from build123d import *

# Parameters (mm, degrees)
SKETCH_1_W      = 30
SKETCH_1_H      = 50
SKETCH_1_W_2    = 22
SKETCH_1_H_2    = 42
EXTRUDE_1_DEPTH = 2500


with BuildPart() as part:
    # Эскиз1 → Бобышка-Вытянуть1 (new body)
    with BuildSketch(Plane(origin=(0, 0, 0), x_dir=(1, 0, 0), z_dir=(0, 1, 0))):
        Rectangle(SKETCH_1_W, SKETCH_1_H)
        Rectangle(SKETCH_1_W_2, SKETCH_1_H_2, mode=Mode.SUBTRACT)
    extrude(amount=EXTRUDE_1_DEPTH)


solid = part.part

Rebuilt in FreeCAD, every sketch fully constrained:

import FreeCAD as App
import Part
import Sketcher

V = App.Vector
Q = App.Units.Quantity

doc = App.newDocument("Part")
body = doc.addObject("PartDesign::Body", "Body")

# Sketch on XZ plane
sketch1 = body.newObject("Sketcher::SketchObject", "Sketch")
sketch1.AttachmentSupport = (doc.getObject("XZ_Plane"), [""])
sketch1.MapMode = "FlatFace"
sketch1.addGeometry([
    Part.LineSegment(V(-15, -25, 0), V(-15, 25, 0)),  # 0
    Part.LineSegment(V(-15, 25, 0), V(15, 25, 0)),  # 1
    Part.LineSegment(V(15, 25, 0), V(15, -25, 0)),  # 2
    Part.LineSegment(V(15, -25, 0), V(-15, -25, 0)),  # 3
    Part.LineSegment(V(11, 21, 0), V(-11, 21, 0)),  # 4
    Part.LineSegment(V(-11, 21, 0), V(-11, -21, 0)),  # 5
    Part.LineSegment(V(-11, -21, 0), V(11, -21, 0)),  # 6
    Part.LineSegment(V(11, -21, 0), V(11, 21, 0)),  # 7
], False)
sketch1.addConstraint([
    Sketcher.Constraint("Coincident", 0, 2, 1, 1),
    Sketcher.Constraint("Coincident", 1, 2, 2, 1),
    Sketcher.Constraint("Coincident", 2, 2, 3, 1),
    Sketcher.Constraint("Coincident", 3, 2, 0, 1),
    Sketcher.Constraint("Coincident", 4, 2, 5, 1),
    Sketcher.Constraint("Coincident", 5, 2, 6, 1),
    Sketcher.Constraint("Coincident", 6, 2, 7, 1),
    Sketcher.Constraint("Coincident", 7, 2, 4, 1),
    Sketcher.Constraint("Vertical", 0),
    Sketcher.Constraint("Horizontal", 1),
    Sketcher.Constraint("Vertical", 2),
    Sketcher.Constraint("Horizontal", 3),
    Sketcher.Constraint("Horizontal", 4),
    Sketcher.Constraint("Vertical", 5),
    Sketcher.Constraint("Horizontal", 6),
    Sketcher.Constraint("Vertical", 7),
    Sketcher.Constraint("Symmetric", 0, 2, 2, 2, -1, 1),
    Sketcher.Constraint("Symmetric", 4, 2, 6, 2, -1, 1),
    Sketcher.Constraint("DistanceX", 1, 1, 1, 2, Q("30 mm")),
    Sketcher.Constraint("DistanceX", 4, 2, 4, 1, Q("22 mm")),
    Sketcher.Constraint("DistanceY", 0, 1, 0, 2, Q("50 mm")),
    Sketcher.Constraint("DistanceY", 5, 2, 5, 1, Q("42 mm")),
])
pad1 = body.newObject("PartDesign::Pad", "Pad")
pad1.Profile = sketch1
pad1.Length = 2500
pad1.Reversed = True

doc.recompute()
